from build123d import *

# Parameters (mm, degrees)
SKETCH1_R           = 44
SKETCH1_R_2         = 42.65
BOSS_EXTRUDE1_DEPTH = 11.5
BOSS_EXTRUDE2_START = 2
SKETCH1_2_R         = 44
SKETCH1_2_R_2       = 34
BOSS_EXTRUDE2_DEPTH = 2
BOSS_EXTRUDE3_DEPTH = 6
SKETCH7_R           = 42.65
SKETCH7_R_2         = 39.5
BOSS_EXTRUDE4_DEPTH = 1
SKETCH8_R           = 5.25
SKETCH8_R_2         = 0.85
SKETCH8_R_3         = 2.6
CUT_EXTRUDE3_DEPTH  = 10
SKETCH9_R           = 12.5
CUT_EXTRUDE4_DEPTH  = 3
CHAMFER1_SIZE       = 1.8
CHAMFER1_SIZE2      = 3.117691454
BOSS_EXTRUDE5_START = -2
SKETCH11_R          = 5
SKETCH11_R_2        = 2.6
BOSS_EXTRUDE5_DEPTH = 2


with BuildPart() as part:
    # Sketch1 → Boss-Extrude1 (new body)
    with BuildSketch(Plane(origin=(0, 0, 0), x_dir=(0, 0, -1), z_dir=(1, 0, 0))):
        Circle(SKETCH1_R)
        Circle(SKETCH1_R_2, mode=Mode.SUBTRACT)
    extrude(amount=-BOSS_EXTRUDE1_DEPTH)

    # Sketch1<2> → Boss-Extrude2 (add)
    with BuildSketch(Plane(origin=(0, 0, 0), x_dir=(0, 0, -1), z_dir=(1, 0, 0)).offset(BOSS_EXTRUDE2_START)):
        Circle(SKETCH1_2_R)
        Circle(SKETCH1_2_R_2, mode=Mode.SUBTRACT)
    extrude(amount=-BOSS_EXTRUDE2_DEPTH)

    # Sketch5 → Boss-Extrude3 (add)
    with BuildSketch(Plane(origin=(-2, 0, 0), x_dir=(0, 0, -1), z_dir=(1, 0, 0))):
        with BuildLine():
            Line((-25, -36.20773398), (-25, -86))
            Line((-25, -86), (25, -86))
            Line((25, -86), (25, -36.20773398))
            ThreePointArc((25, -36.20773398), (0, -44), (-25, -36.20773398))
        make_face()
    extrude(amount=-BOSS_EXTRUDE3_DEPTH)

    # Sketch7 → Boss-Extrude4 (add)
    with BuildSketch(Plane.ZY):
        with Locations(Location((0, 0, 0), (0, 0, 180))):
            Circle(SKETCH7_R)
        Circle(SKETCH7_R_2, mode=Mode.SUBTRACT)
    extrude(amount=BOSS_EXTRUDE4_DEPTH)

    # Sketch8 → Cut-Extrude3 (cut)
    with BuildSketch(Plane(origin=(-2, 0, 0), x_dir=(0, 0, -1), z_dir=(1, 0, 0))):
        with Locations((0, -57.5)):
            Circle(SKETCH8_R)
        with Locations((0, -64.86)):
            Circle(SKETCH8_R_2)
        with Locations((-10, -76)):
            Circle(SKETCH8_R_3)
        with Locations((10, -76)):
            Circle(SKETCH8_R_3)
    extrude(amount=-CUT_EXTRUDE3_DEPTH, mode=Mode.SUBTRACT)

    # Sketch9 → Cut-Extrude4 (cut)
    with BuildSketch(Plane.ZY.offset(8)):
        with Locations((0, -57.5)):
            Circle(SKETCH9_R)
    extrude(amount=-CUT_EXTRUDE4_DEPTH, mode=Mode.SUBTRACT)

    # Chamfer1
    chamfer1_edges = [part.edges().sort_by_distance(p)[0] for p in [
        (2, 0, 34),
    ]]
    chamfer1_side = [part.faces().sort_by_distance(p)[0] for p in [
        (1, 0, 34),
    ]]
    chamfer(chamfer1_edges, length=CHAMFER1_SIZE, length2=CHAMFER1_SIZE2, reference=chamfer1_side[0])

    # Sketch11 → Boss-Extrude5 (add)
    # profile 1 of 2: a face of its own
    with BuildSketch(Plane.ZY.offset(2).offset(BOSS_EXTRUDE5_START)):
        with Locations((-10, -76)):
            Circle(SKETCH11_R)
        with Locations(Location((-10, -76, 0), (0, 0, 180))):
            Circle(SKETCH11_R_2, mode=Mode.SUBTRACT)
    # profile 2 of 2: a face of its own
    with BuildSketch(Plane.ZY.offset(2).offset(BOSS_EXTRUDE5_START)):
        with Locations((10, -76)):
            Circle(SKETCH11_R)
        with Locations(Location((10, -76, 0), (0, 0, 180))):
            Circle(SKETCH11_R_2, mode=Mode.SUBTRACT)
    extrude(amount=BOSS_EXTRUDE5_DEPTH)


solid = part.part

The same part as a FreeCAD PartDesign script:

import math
import FreeCAD as App
import Part
import Sketcher

V = App.Vector
Q = App.Units.Quantity


def edges_at(feature, points):
    """Names of the edges that pass closest to the given points."""
    edges = feature.Shape.Edges
    near = lambda p: min(range(len(edges)), key=lambda i: edges[i].distToShape(Part.Vertex(*p))[0])
    return sorted({f"Edge{near(p) + 1}" for p in points})

doc = App.newDocument("Part")
body = doc.addObject("PartDesign::Body", "Body")

sketch1 = body.newObject("Sketcher::SketchObject", "Sketch")
sketch1.AttachmentSupport = (doc.getObject("YZ_Plane"), [""])
sketch1.MapMode = "FlatFace"
sketch1.addGeometry(Part.Circle(V(0, 0, 0), V(0, 0, 1), 44), False)
sketch1.addGeometry(Part.Circle(V(0, 0, 0), V(0, 0, 1), 43), False)
sketch1.addConstraint(Sketcher.Constraint("Coincident", 0, 3, -1, 1))
sketch1.addConstraint(Sketcher.Constraint("Coincident", 1, 3, -1, 1))
sketch1.addConstraint(Sketcher.Constraint("Diameter", 0, Q("88 mm")))
sketch1.addConstraint(Sketcher.Constraint("Diameter", 1, Q("85.3 mm")))
pad1 = body.newObject("PartDesign::Pad", "Pad")
pad1.Profile = sketch1
pad1.Length = 11.5
pad1.Reversed = True

sketch2 = body.newObject("Sketcher::SketchObject", "Sketch001")
sketch2.AttachmentSupport = (doc.getObject("YZ_Plane"), [""])
sketch2.MapMode = "FlatFace"
sketch2.AttachmentOffset = App.Placement(V(0, 0, 2), App.Rotation())
sketch2.addGeometry(Part.Circle(V(0, 0, 0), V(0, 0, 1), 44), False)
sketch2.addGeometry(Part.Circle(V(0, 0, 0), V(0, 0, 1), 34), False)
sketch2.addConstraint(Sketcher.Constraint("Coincident", 0, 3, -1, 1))
sketch2.addConstraint(Sketcher.Constraint("Coincident", 1, 3, -1, 1))
sketch2.addConstraint(Sketcher.Constraint("Diameter", 0, Q("88 mm")))
sketch2.addConstraint(Sketcher.Constraint("Diameter", 1, Q("68 mm")))
pad2 = body.newObject("PartDesign::Pad", "Pad001")
pad2.Profile = sketch2
pad2.Length = 2
pad2.Reversed = True

sketch3 = body.newObject("Sketcher::SketchObject", "Sketch002")
sketch3.AttachmentSupport = (doc.getObject("YZ_Plane"), [""])
sketch3.MapMode = "FlatFace"
sketch3.AttachmentOffset = App.Placement(V(0, 0, -2), App.Rotation())
sketch3.addGeometry(Part.LineSegment(V(-36.207734, 25, 0), V(-86, 25, 0)), False)
sketch3.addGeometry(Part.LineSegment(V(-86, 25, 0), V(-86, -25, 0)), False)
sketch3.addGeometry(Part.LineSegment(V(-86, -25, 0), V(-36.207734, -25, 0)), False)
sketch3.addGeometry(Part.ArcOfCircle(Part.Circle(V(0, 0, 0), V(0, 0, 1), 44), math.radians(145.376465), math.radians(214.623535)), False)
sketch3.addConstraint(Sketcher.Constraint("Coincident", 0, 2, 1, 1))
sketch3.addConstraint(Sketcher.Constraint("Coincident", 1, 2, 2, 1))
sketch3.addConstraint(Sketcher.Constraint("Coincident", 2, 2, 3, 2))
sketch3.addConstraint(Sketcher.Constraint("Coincident", 3, 1, 0, 1))
sketch3.addConstraint(Sketcher.Constraint("Horizontal", 0))
sketch3.addConstraint(Sketcher.Constraint("Vertical", 1))
sketch3.addConstraint(Sketcher.Constraint("Horizontal", 2))
sketch3.addConstraint(Sketcher.Constraint("Coincident", 3, 3, -1, 1))
sketch3.addConstraint(Sketcher.Constraint("Vertical", 2, 2, 3, 1))
sketch3.addConstraint(Sketcher.Constraint("Radius", 3, Q("44 mm")))
sketch3.addConstraint(Sketcher.Constraint("DistanceY", 1, 2, 1, 1, Q("50 mm")))
sketch3.addConstraint(Sketcher.Constraint("DistanceX", 0, 2, -1, 1, Q("86 mm")))
pad3 = body.newObject("PartDesign::Pad", "Pad002")
pad3.Profile = sketch3
pad3.Length = 6
pad3.Reversed = True

sketch4 = body.newObject("Sketcher::SketchObject", "Sketch003")
sketch4.AttachmentSupport = (doc.getObject("YZ_Plane"), [""])
sketch4.MapMode = "FlatFace"
sketch4.addGeometry(Part.Circle(V(0, 0, 0), V(0, 0, 1), 43), False)
sketch4.addGeometry(Part.Circle(V(0, 0, 0), V(0, 0, 1), 40), False)
sketch4.addConstraint(Sketcher.Constraint("Coincident", 0, 3, -1, 1))
sketch4.addConstraint(Sketcher.Constraint("Coincident", 1, 3, -1, 1))
sketch4.addConstraint(Sketcher.Constraint("Diameter", 1, Q("79 mm")))
sketch4.addConstraint(Sketcher.Constraint("Diameter", 0, Q("85.3 mm")))
pad4 = body.newObject("PartDesign::Pad", "Pad003")
pad4.Profile = sketch4
pad4.Length = 1
pad4.Reversed = True

sketch5 = body.newObject("Sketcher::SketchObject", "Sketch004")
sketch5.AttachmentSupport = (doc.getObject("YZ_Plane"), [""])
sketch5.MapMode = "FlatFace"
sketch5.AttachmentOffset = App.Placement(V(0, 0, -2), App.Rotation())
sketch5.addGeometry(Part.Circle(V(-57.5, 0, 0), V(0, 0, 1), 5.2), False)
sketch5.addGeometry(Part.Circle(V(-64.9, 0, 0), V(0, 0, 1), 0.8), False)
sketch5.addGeometry(Part.Circle(V(-76, 10, 0), V(0, 0, 1), 2.6), False)
sketch5.addGeometry(Part.Circle(V(-76, -10, 0), V(0, 0, 1), 2.6), False)
sketch5.addConstraint(Sketcher.Constraint("Equal", 2, 3))
sketch5.addConstraint(Sketcher.Constraint("Symmetric", 2, 3, 3, 3, -1))
sketch5.addConstraint(Sketcher.Constraint("PointOnObject", 0, 3, -1))
sketch5.addConstraint(Sketcher.Constraint("PointOnObject", 1, 3, -1))
sketch5.addConstraint(Sketcher.Constraint("Diameter", 0, Q("10.5 mm")))
sketch5.addConstraint(Sketcher.Constraint("Diameter", 1, Q("1.7 mm")))
sketch5.addConstraint(Sketcher.Constraint("Diameter", 2, Q("5.2 mm")))
sketch5.addConstraint(Sketcher.Constraint("DistanceX", 2, 3, -1, 1, Q("76 mm")))
sketch5.addConstraint(Sketcher.Constraint("DistanceY", -1, 1, 2, 3, Q("10 mm")))
sketch5.addConstraint(Sketcher.Constraint("DistanceX", 0, 3, -1, 1, Q("57.5 mm")))
sketch5.addConstraint(Sketcher.Constraint("DistanceX", 1, 3, -1, 1, Q("64.86 mm")))
pocket1 = body.newObject("PartDesign::Pocket", "Pocket")
pocket1.Profile = sketch5
pocket1.Length = 10

sketch6 = body.newObject("Sketcher::SketchObject", "Sketch005")
sketch6.AttachmentSupport = (doc.getObject("YZ_Plane"), [""])
sketch6.MapMode = "FlatFace"
sketch6.AttachmentOffset = App.Placement(V(0, 0, -8), App.Rotation())
sketch6.addGeometry(Part.Circle(V(-58, 0, 0), V(0, 0, 1), 12), False)
sketch6.addConstraint(Sketcher.Constraint("PointOnObject", 0, 3, -1))
sketch6.addConstraint(Sketcher.Constraint("Diameter", 0, Q("25 mm")))
sketch6.addConstraint(Sketcher.Constraint("DistanceX", 0, 3, -1, 1, Q("57.5 mm")))
pocket2 = body.newObject("PartDesign::Pocket", "Pocket001")
pocket2.Profile = sketch6
pocket2.Length = 3
pocket2.Reversed = True
doc.recompute()

chamfer = body.newObject("PartDesign::Chamfer", "Chamfer")
chamfer.Base = (pocket2, edges_at(pocket2, [(2, 0, 34)]))
chamfer.ChamferType = "Two distances"
chamfer.Size = 1.8
chamfer.Size2 = 3.117691
chamfer.FlipDirection = True

sketch7 = body.newObject("Sketcher::SketchObject", "Sketch006")
sketch7.AttachmentSupport = (doc.getObject("YZ_Plane"), [""])
sketch7.MapMode = "FlatFace"
sketch7.addGeometry(Part.Circle(V(-76, -10, 0), V(0, 0, 1), 5), False)
sketch7.addGeometry(Part.Circle(V(-76, -10, 0), V(0, 0, 1), 2.6), False)
sketch7.addGeometry(Part.Circle(V(-76, 10, 0), V(0, 0, 1), 5), False)
sketch7.addGeometry(Part.Circle(V(-76, 10, 0), V(0, 0, 1), 2.6), False)
sketch7.addConstraint(Sketcher.Constraint("Coincident", 1, 3, 0, 3))
sketch7.addConstraint(Sketcher.Constraint("Coincident", 3, 3, 2, 3))
sketch7.addConstraint(Sketcher.Constraint("Equal", 0, 2))
sketch7.addConstraint(Sketcher.Constraint("Equal", 1, 3))
sketch7.addConstraint(Sketcher.Constraint("Symmetric", 0, 3, 2, 3, -1))
sketch7.addConstraint(Sketcher.Constraint("Diameter", 0, Q("10 mm")))
sketch7.addConstraint(Sketcher.Constraint("Diameter", 1, Q("5.2 mm")))
sketch7.addConstraint(Sketcher.Constraint("DistanceX", 0, 3, -1, 1, Q("76 mm")))
sketch7.addConstraint(Sketcher.Constraint("DistanceY", 0, 3, -1, 1, Q("10 mm")))
pad5 = body.newObject("PartDesign::Pad", "Pad004")
pad5.Profile = sketch7
pad5.Length = 2
pad5.Reversed = True

doc.recompute()
